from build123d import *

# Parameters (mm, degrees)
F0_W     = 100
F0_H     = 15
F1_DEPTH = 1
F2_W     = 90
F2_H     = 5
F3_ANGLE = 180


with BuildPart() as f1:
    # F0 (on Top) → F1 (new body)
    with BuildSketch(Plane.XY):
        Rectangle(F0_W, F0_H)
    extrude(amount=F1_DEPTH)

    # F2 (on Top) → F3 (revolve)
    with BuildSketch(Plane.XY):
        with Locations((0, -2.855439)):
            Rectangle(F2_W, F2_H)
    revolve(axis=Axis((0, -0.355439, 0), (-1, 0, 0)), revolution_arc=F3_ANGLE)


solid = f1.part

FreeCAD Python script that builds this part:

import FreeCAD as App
import Part
import Sketcher
Q = App.Units.Quantity


def add_polygon(sketch, points):
    """Adds a closed chain of lines whose ends are joined by coincident constraints."""
    first, n = sketch.GeometryCount, len(points)
    for a, b in zip(points, points[1:] + points[:1]):
        sketch.addGeometry(Part.LineSegment(App.Vector(*a, 0), App.Vector(*b, 0)), False)
    for i in range(n):
        sketch.addConstraint(Sketcher.Constraint("Coincident", first + i, 2, first + (i + 1) % n, 1))

doc = App.newDocument("Part")
body = doc.addObject("PartDesign::Body", "Body")

# Sketch on XY plane
sketch1 = doc.addObject("Sketcher::SketchObject", "Sketch")
body.addObject(sketch1)
sketch1.AttachmentSupport = (doc.XY_Plane, [""])
sketch1.MapMode = "FlatFace"
add_polygon(sketch1, [(-50, 8), (-50, -8), (50, -8), (50, 8)])  # lines 0-3
sketch1.addConstraint(Sketcher.Constraint("Vertical", 0))
sketch1.addConstraint(Sketcher.Constraint("Horizontal", 1))
sketch1.addConstraint(Sketcher.Constraint("Vertical", 2))
sketch1.addConstraint(Sketcher.Constraint("Horizontal", 3))
sketch1.addConstraint(Sketcher.Constraint("Symmetric", 0, 2, 2, 2, -1, 1))
sketch1.addConstraint(Sketcher.Constraint("DistanceX", 1, 1, 1, 2, Q("100 mm")))
sketch1.addConstraint(Sketcher.Constraint("DistanceY", 0, 2, 0, 1, Q("15 mm")))
pad1 = doc.addObject("PartDesign::Pad", "Pad")
body.addObject(pad1)
pad1.Profile = sketch1
pad1.Length = 1

# Sketch on XY plane
sketch2 = doc.addObject("Sketcher::SketchObject", "Sketch001")
body.addObject(sketch2)
sketch2.AttachmentSupport = (doc.XY_Plane, [""])
sketch2.MapMode = "FlatFace"
add_polygon(sketch2, [(-45, 0), (-45, -5), (45, -5), (45, 0)])  # lines 0-3
sketch2.addGeometry(Part.LineSegment(App.Vector(45, 0, 0), App.Vector(-45, 0, 0)), True)  # axis
sketch2.addConstraint(Sketcher.Constraint("Vertical", 0))
sketch2.addConstraint(Sketcher.Constraint("Horizontal", 1))
sketch2.addConstraint(Sketcher.Constraint("Vertical", 2))
sketch2.addConstraint(Sketcher.Constraint("Horizontal", 3))
sketch2.addConstraint(Sketcher.Constraint("Horizontal", 4))
sketch2.addConstraint(Sketcher.Constraint("Coincident", 4, 1, 2, 2))
sketch2.addConstraint(Sketcher.Constraint("Vertical", 0, 2, 4, 2))
sketch2.addConstraint(Sketcher.Constraint("DistanceX", 1, 1, 1, 2, Q("90 mm")))
sketch2.addConstraint(Sketcher.Constraint("DistanceY", 0, 2, 0, 1, Q("5 mm")))
sketch2.addConstraint(Sketcher.Constraint("DistanceX", 0, 2, -1, 1, Q("45 mm")))
sketch2.addConstraint(Sketcher.Constraint("DistanceY", 0, 2, -1, 1, Q("5.355439 mm")))
revolution = doc.addObject("PartDesign::Revolution", "Revolution")
body.addObject(revolution)
revolution.Profile = sketch2
revolution.ReferenceAxis = (sketch2, ["Axis0"])
revolution.Angle = 180

doc.recompute()
